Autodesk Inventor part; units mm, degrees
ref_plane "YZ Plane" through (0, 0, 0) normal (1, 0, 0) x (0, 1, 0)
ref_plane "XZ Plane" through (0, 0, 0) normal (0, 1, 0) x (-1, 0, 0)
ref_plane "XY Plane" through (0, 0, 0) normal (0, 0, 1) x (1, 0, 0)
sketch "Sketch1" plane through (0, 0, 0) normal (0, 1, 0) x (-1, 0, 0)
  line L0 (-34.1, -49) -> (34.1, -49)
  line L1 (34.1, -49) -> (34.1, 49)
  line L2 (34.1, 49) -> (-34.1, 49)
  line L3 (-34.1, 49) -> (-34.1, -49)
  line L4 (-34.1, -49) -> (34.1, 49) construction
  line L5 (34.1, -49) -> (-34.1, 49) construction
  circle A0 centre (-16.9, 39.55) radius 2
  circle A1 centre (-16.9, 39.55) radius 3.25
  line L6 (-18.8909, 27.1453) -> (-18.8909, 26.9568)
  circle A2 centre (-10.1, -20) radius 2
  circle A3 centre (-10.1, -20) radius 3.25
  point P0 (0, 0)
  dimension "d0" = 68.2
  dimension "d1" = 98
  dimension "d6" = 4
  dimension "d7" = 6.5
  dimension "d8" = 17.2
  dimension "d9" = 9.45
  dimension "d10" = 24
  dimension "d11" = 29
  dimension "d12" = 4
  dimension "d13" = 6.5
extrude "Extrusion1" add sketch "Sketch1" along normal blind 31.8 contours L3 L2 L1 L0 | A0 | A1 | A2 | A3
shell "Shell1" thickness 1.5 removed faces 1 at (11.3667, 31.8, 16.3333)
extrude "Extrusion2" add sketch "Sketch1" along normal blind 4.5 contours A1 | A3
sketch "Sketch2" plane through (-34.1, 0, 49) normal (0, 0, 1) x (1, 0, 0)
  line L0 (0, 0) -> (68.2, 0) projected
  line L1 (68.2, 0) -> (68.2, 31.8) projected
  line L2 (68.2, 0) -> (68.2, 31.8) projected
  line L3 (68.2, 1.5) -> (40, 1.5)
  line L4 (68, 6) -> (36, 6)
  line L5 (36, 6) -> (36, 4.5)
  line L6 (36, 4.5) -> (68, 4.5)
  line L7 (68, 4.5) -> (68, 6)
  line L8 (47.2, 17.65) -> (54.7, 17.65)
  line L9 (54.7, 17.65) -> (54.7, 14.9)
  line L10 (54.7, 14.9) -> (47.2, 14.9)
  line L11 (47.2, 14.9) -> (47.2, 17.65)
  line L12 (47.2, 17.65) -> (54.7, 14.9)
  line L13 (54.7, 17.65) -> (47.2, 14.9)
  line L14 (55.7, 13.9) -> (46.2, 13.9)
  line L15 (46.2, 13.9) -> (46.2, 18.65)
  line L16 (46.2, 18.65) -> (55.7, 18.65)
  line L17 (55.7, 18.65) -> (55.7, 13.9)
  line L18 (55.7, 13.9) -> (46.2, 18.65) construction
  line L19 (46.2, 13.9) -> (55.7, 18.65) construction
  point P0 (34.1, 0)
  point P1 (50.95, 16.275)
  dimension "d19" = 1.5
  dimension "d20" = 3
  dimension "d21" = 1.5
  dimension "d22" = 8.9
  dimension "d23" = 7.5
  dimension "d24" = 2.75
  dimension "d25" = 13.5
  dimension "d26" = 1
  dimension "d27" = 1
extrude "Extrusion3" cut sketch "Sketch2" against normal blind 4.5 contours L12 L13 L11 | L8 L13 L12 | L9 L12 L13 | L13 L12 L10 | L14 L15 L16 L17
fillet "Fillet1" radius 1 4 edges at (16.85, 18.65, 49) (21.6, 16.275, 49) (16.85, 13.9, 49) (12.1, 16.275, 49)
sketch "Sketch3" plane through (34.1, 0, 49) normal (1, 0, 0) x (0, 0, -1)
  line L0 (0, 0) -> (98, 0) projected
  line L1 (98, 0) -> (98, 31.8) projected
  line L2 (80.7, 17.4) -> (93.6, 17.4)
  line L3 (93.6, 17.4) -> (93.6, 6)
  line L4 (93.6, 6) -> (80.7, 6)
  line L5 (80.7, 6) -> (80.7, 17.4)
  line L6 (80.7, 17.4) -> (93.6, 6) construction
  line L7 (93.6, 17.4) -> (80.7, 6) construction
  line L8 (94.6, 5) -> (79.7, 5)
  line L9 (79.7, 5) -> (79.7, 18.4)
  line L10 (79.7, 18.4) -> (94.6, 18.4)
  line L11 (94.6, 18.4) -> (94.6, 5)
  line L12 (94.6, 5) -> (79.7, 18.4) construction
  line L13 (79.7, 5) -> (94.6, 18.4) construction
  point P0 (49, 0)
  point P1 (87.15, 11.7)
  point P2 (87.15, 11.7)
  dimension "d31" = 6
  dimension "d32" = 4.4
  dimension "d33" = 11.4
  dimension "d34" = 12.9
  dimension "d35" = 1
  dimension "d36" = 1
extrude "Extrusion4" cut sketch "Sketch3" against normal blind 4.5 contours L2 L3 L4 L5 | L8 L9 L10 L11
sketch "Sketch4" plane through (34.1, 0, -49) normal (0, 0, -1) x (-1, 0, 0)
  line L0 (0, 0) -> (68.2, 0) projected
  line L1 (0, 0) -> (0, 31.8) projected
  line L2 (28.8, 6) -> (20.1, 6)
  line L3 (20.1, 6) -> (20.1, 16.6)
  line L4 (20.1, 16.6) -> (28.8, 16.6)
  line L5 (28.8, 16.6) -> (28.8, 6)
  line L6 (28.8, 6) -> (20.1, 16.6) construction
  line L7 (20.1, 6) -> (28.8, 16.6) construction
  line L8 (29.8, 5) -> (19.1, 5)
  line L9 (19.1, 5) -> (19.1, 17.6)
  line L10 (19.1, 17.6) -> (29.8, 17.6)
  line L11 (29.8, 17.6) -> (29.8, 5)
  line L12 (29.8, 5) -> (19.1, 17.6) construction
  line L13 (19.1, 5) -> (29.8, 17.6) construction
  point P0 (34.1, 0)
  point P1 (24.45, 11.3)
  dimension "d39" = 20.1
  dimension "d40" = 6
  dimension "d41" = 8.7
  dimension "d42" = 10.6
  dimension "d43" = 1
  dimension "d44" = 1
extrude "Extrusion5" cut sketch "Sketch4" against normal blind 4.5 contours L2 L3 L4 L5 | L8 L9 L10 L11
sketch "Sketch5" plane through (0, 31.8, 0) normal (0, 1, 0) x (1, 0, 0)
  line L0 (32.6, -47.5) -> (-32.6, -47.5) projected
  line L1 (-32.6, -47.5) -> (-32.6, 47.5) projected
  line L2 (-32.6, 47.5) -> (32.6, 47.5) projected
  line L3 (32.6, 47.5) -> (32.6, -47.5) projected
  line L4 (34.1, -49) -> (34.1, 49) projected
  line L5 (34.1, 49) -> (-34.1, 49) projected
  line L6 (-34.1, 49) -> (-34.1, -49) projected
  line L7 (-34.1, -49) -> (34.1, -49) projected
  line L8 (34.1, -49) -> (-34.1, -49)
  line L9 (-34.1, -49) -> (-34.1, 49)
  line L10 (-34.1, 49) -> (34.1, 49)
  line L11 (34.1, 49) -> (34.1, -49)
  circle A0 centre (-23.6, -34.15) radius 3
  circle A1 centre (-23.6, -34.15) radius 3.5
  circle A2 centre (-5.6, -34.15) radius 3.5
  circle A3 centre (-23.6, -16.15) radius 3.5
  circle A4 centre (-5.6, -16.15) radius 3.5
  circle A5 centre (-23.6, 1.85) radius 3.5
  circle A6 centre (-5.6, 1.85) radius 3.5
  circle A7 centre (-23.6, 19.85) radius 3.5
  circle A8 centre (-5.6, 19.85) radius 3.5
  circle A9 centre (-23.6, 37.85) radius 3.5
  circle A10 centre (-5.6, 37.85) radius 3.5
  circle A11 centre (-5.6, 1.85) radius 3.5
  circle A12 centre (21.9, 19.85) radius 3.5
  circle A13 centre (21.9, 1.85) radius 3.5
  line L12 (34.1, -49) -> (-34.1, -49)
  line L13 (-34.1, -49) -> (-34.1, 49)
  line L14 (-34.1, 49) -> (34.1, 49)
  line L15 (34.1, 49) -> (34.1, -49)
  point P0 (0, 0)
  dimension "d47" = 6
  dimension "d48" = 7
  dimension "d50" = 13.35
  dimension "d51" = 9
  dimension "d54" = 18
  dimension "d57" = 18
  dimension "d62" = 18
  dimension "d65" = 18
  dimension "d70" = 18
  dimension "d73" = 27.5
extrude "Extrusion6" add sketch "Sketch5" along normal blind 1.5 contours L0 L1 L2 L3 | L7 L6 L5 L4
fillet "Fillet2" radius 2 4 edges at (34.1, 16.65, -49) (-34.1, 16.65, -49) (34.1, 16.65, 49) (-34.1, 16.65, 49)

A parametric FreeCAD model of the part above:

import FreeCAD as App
import Part
import Sketcher
from FreeCAD import Vector


def edges_at(feature, points):
    """Names of the edges that pass closest to the given points."""
    edges = feature.Shape.Edges
    near = lambda p: min(range(len(edges)), key=lambda i: edges[i].distToShape(Part.Vertex(*p))[0])
    return sorted({f"Edge{near(p) + 1}" for p in points})


def faces_at(feature, points):
    """Names of the faces that lie closest to the given points."""
    faces = feature.Shape.Faces
    near = lambda p: min(range(len(faces)), key=lambda i: faces[i].distToShape(Part.Vertex(*p))[0])
    return sorted({f"Face{near(p) + 1}" for p in points})

doc = App.newDocument("Part")
body = doc.addObject("PartDesign::Body", "Body")

sketch1 = body.newObject("Sketcher::SketchObject", "Sketch")
sketch1.AttachmentSupport = (doc.getObject("XZ_Plane"), [""])
sketch1.MapMode = "FlatFace"
sketch1.addGeometry([
    Part.LineSegment(Vector(34, 49, 0), Vector(34, -49, 0)),
    Part.LineSegment(Vector(34, -49, 0), Vector(-34, -49, 0)),
    Part.LineSegment(Vector(-34, -49, 0), Vector(-34, 49, 0)),
    Part.LineSegment(Vector(-34, 49, 0), Vector(34, 49, 0)),
], False)
sketch1.addConstraint([
    Sketcher.Constraint("Coincident", 0, 2, 1, 1),
    Sketcher.Constraint("Coincident", 1, 2, 2, 1),
    Sketcher.Constraint("Coincident", 2, 2, 3, 1),
    Sketcher.Constraint("Coincident", 3, 2, 0, 1),
    Sketcher.Constraint("Vertical", 0),
    Sketcher.Constraint("Horizontal", 1),
    Sketcher.Constraint("Vertical", 2),
    Sketcher.Constraint("Horizontal", 3),
    Sketcher.Constraint("Symmetric", 0, 2, 2, 2, -1, 1),
    Sketcher.Constraint("DistanceY", 0, 2, 0, 1, 98.0),
    Sketcher.Constraint("DistanceX", 1, 2, 1, 1, 68.2),
])
pad1 = body.newObject("PartDesign::Pad", "Pad")
pad1.Profile = sketch1
pad1.Length = 31.8
pad1.Reversed = True
doc.recompute()

thickness = body.newObject("PartDesign::Thickness", "Thickness")
thickness.Base = (pad1, faces_at(pad1, [(11.367, 31.8, 16.333)]))
thickness.Value = 1.5
thickness.Reversed = True
thickness.Join = "Intersection"

sketch2 = body.newObject("Sketcher::SketchObject", "Sketch001")
sketch2.AttachmentSupport = (doc.getObject("XZ_Plane"), [""])
sketch2.MapMode = "FlatFace"
sketch2.addGeometry([
    Part.Circle(Vector(16.9, 39.5, 0), Vector(0, 0, 1), 3.2),
    Part.Circle(Vector(16.9, 39.5, 0), Vector(0, 0, 1), 2),
    Part.Circle(Vector(10.1, -20, 0), Vector(0, 0, 1), 3.2),
    Part.Circle(Vector(10.1, -20, 0), Vector(0, 0, 1), 2),
], False)
sketch2.addConstraint([
    Sketcher.Constraint("Coincident", 1, 3, 0, 3),
    Sketcher.Constraint("Coincident", 3, 3, 2, 3),
    Sketcher.Constraint("Equal", 0, 2),
    Sketcher.Constraint("Equal", 1, 3),
    Sketcher.Constraint("Diameter", 1, 4.0),
    Sketcher.Constraint("Diameter", 0, 6.5),
    Sketcher.Constraint("DistanceY", 2, 3, -1, 1, 20.0),
    Sketcher.Constraint("DistanceX", -1, 1, 0, 3, 16.9),
    Sketcher.Constraint("DistanceX", -1, 1, 2, 3, 10.1),
    Sketcher.Constraint("DistanceY", -1, 1, 0, 3, 39.55),
])
pad2 = body.newObject("PartDesign::Pad", "Pad001")
pad2.Profile = sketch2
pad2.Length = 4.5
pad2.Reversed = True

sketch3 = body.newObject("Sketcher::SketchObject", "Sketch002")
sketch3.AttachmentSupport = (doc.getObject("XY_Plane"), [""])
sketch3.MapMode = "FlatFace"
sketch3.AttachmentOffset = App.Placement(Vector(0, 0, 49), App.Rotation())
sketch3.addGeometry([
    Part.LineSegment(Vector(12.1, 13.9, 0), Vector(21.6, 13.9, 0)),
    Part.LineSegment(Vector(21.6, 13.9, 0), Vector(21.6, 18.6, 0)),
    Part.LineSegment(Vector(21.6, 18.6, 0), Vector(12.1, 18.6, 0)),
    Part.LineSegment(Vector(12.1, 18.6, 0), Vector(12.1, 13.9, 0)),
], False)
sketch3.addConstraint([
    Sketcher.Constraint("Coincident", 0, 2, 1, 1),
    Sketcher.Constraint("Coincident", 1, 2, 2, 1),
    Sketcher.Constraint("Coincident", 2, 2, 3, 1),
    Sketcher.Constraint("Coincident", 3, 2, 0, 1),
    Sketcher.Constraint("Horizontal", 0),
    Sketcher.Constraint("Vertical", 1),
    Sketcher.Constraint("Horizontal", 2),
    Sketcher.Constraint("Vertical", 3),
    Sketcher.Constraint("DistanceX", 0, 1, 0, 2, 9.5),
    Sketcher.Constraint("DistanceY", 1, 1, 1, 2, 4.75),
    Sketcher.Constraint("DistanceX", -1, 1, 0, 2, 21.6),
    Sketcher.Constraint("DistanceY", -1, 1, 0, 2, 13.9),
])
pocket1 = body.newObject("PartDesign::Pocket", "Pocket")
pocket1.Profile = sketch3
pocket1.Length = 4.5
doc.recompute()

fillet = body.newObject("PartDesign::Fillet", "Fillet")
fillet.Base = (pocket1, edges_at(pocket1, [
    (16.85, 18.65, 49),
    (21.6, 16.275, 49),
    (16.85, 13.9, 49),
    (12.1, 16.275, 49),
]))
fillet.Radius = 1

sketch4 = body.newObject("Sketcher::SketchObject", "Sketch003")
sketch4.AttachmentSupport = (doc.getObject("YZ_Plane"), [""])
sketch4.MapMode = "FlatFace"
sketch4.AttachmentOffset = App.Placement(Vector(0, 0, 34.1), App.Rotation())
sketch4.addGeometry([
    Part.LineSegment(Vector(5, -31, 0), Vector(5, -46, 0)),
    Part.LineSegment(Vector(5, -46, 0), Vector(18, -46, 0)),
    Part.LineSegment(Vector(18, -46, 0), Vector(18, -31, 0)),
    Part.LineSegment(Vector(18, -31, 0), Vector(5, -31, 0)),
], False)
sketch4.addConstraint([
    Sketcher.Constraint("Coincident", 0, 2, 1, 1),
    Sketcher.Constraint("Coincident", 1, 2, 2, 1),
    Sketcher.Constraint("Coincident", 2, 2, 3, 1),
    Sketcher.Constraint("Coincident", 3, 2, 0, 1),
    Sketcher.Constraint("Vertical", 0),
    Sketcher.Constraint("Horizontal", 1),
    Sketcher.Constraint("Vertical", 2),
    Sketcher.Constraint("Horizontal", 3),
    Sketcher.Constraint("DistanceX", 1, 1, 1, 2, 13.4),
    Sketcher.Constraint("DistanceY", 0, 2, 0, 1, 14.9),
    Sketcher.Constraint("DistanceX", -1, 1, 0, 2, 5.0),
    Sketcher.Constraint("DistanceY", 0, 2, -1, 1, 45.6),
])
pocket2 = body.newObject("PartDesign::Pocket", "Pocket001")
pocket2.Profile = sketch4
pocket2.Length = 4.5

sketch5 = body.newObject("Sketcher::SketchObject", "Sketch004")
sketch5.AttachmentSupport = (doc.getObject("XY_Plane"), [""])
sketch5.MapMode = "FlatFace"
sketch5.AttachmentOffset = App.Placement(Vector(0, 0, -49), App.Rotation())
sketch5.addGeometry([
    Part.LineSegment(Vector(15, 5, 0), Vector(4, 5, 0)),
    Part.LineSegment(Vector(4, 5, 0), Vector(4, 18, 0)),
    Part.LineSegment(Vector(4, 18, 0), Vector(15, 18, 0)),
    Part.LineSegment(Vector(15, 18, 0), Vector(15, 5, 0)),
], False)
sketch5.addConstraint([
    Sketcher.Constraint("Coincident", 0, 2, 1, 1),
    Sketcher.Constraint("Coincident", 1, 2, 2, 1),
    Sketcher.Constraint("Coincident", 2, 2, 3, 1),
    Sketcher.Constraint("Coincident", 3, 2, 0, 1),
    Sketcher.Constraint("Horizontal", 0),
    Sketcher.Constraint("Vertical", 1),
    Sketcher.Constraint("Horizontal", 2),
    Sketcher.Constraint("Vertical", 3),
    Sketcher.Constraint("DistanceX", 0, 2, 0, 1, 10.7),
    Sketcher.Constraint("DistanceY", 1, 1, 1, 2, 12.6),
    Sketcher.Constraint("DistanceY", -1, 1, 0, 2, 5.0),
    Sketcher.Constraint("DistanceX", -1, 1, 2, 2, 15.0),
])
pocket3 = body.newObject("PartDesign::Pocket", "Pocket002")
pocket3.Profile = sketch5
pocket3.Length = 4.5
pocket3.Reversed = True

sketch6 = body.newObject("Sketcher::SketchObject", "Sketch005")
sketch6.AttachmentSupport = (doc.getObject("XZ_Plane"), [""])
sketch6.MapMode = "FlatFace"
sketch6.AttachmentOffset = App.Placement(Vector(0, 0, -31.8), App.Rotation())
sketch6.addGeometry([
    Part.LineSegment(Vector(-34.1, 49, 0), Vector(34.1, 49, 0)),
    Part.LineSegment(Vector(34.1, 49, 0), Vector(34.1, -49, 0)),
    Part.LineSegment(Vector(34.1, -49, 0), Vector(-34.1, -49, 0)),
    Part.LineSegment(Vector(-34.1, -49, 0), Vector(-34.1, 49, 0)),
    Part.Circle(Vector(-23.6, 34.1, 0), Vector(0, 0, 1), 3.5),
    Part.Circle(Vector(-5.6, 34.1, 0), Vector(0, 0, 1), 3.5),
    Part.Circle(Vector(-23.6, 16.1, 0), Vector(0, 0, 1), 3.5),
    Part.Circle(Vector(-5.6, 16.1, 0), Vector(0, 0, 1), 3.5),
    Part.Circle(Vector(-23.6, -1.9, 0), Vector(0, 0, 1), 3.5),
    Part.Circle(Vector(-23.6, -19.9, 0), Vector(0, 0, 1), 3.5),
    Part.Circle(Vector(-5.6, -1.9, 0), Vector(0, 0, 1), 3.5),
    Part.Circle(Vector(-5.6, -19.9, 0), Vector(0, 0, 1), 3.5),
    Part.Circle(Vector(-23.6, -37.9, 0), Vector(0, 0, 1), 3.5),
    Part.Circle(Vector(-5.6, -37.9, 0), Vector(0, 0, 1), 3.5),
    Part.Circle(Vector(21.9, -1.9, 0), Vector(0, 0, 1), 3.5),
    Part.Circle(Vector(21.9, -19.9, 0), Vector(0, 0, 1), 3.5),
], False)
sketch6.addConstraint([
    Sketcher.Constraint("Coincident", 0, 2, 1, 1),
    Sketcher.Constraint("Coincident", 1, 2, 2, 1),
    Sketcher.Constraint("Coincident", 2, 2, 3, 1),
    Sketcher.Constraint("Coincident", 3, 2, 0, 1),
    Sketcher.Constraint("Horizontal", 0),
    Sketcher.Constraint("Vertical", 1),
    Sketcher.Constraint("Horizontal", 2),
    Sketcher.Constraint("Vertical", 3),
    Sketcher.Constraint("Equal", 4, 5),
    Sketcher.Constraint("Equal", 5, 6),
    Sketcher.Constraint("Equal", 6, 7),
    Sketcher.Constraint("Equal", 7, 8),
    Sketcher.Constraint("Equal", 8, 9),
    Sketcher.Constraint("Equal", 9, 10),
    Sketcher.Constraint("Equal", 10, 11),
    Sketcher.Constraint("Equal", 11, 12),
    Sketcher.Constraint("Equal", 12, 13),
    Sketcher.Constraint("Equal", 13, 14),
    Sketcher.Constraint("Equal", 14, 15),
    Sketcher.Constraint("Symmetric", 0, 2, 2, 2, -1, 1),
    Sketcher.Constraint("Horizontal", 4, 3, 5, 3),
    Sketcher.Constraint("Horizontal", 6, 3, 7, 3),
    Sketcher.Constraint("Horizontal", 8, 3, 10, 3),
    Sketcher.Constraint("Horizontal", 9, 3, 11, 3),
    Sketcher.Constraint("Horizontal", 12, 3, 13, 3),
    Sketcher.Constraint("Horizontal", 10, 3, 14, 3),
    Sketcher.Constraint("Horizontal", 11, 3, 15, 3),
    Sketcher.Constraint("Vertical", 4, 3, 6, 3),
    Sketcher.Constraint("Vertical", 5, 3, 7, 3),
    Sketcher.Constraint("Vertical", 6, 3, 8, 3),
    Sketcher.Constraint("Vertical", 8, 3, 9, 3),
    Sketcher.Constraint("Vertical", 7, 3, 10, 3),
    Sketcher.Constraint("Vertical", 10, 3, 11, 3),
    Sketcher.Constraint("Vertical", 9, 3, 12, 3),
    Sketcher.Constraint("Vertical", 11, 3, 13, 3),
    Sketcher.Constraint("Vertical", 14, 3, 15, 3),
    Sketcher.Constraint("Diameter", 4, 7.0),
    Sketcher.Constraint("DistanceX", 4, 3, 5, 3, 18.0),
    Sketcher.Constraint("DistanceY", 6, 3, 4, 3, 18.0),
    Sketcher.Constraint("DistanceY", 8, 3, 6, 3, 18.0),
    Sketcher.Constraint("DistanceY", 9, 3, 8, 3, 18.0),
    Sketcher.Constraint("DistanceY", 12, 3, 9, 3, 18.0),
    Sketcher.Constraint("DistanceX", 10, 3, 14, 3, 27.5),
    Sketcher.Constraint("DistanceY", 1, 2, 1, 1, 98.0),
    Sketcher.Constraint("DistanceX", 0, 1, 0, 2, 68.2),
    Sketcher.Constraint("DistanceX", 4, 3, -1, 1, 23.6),
    Sketcher.Constraint("DistanceY", -1, 1, 4, 3, 34.15),
])
pad3 = body.newObject("PartDesign::Pad", "Pad002")
pad3.Profile = sketch6
pad3.Length = 1.5
pad3.Reversed = True
doc.recompute()

fillet2 = body.newObject("PartDesign::Fillet", "Fillet001")
fillet2.Base = (pad3, edges_at(pad3, [
    (34.1, 16.65, -49),
    (-34.1, 16.65, -49),
    (34.1, 16.65, 49),
    (-34.1, 16.65, 49),
]))
fillet2.Radius = 2

doc.recompute()
